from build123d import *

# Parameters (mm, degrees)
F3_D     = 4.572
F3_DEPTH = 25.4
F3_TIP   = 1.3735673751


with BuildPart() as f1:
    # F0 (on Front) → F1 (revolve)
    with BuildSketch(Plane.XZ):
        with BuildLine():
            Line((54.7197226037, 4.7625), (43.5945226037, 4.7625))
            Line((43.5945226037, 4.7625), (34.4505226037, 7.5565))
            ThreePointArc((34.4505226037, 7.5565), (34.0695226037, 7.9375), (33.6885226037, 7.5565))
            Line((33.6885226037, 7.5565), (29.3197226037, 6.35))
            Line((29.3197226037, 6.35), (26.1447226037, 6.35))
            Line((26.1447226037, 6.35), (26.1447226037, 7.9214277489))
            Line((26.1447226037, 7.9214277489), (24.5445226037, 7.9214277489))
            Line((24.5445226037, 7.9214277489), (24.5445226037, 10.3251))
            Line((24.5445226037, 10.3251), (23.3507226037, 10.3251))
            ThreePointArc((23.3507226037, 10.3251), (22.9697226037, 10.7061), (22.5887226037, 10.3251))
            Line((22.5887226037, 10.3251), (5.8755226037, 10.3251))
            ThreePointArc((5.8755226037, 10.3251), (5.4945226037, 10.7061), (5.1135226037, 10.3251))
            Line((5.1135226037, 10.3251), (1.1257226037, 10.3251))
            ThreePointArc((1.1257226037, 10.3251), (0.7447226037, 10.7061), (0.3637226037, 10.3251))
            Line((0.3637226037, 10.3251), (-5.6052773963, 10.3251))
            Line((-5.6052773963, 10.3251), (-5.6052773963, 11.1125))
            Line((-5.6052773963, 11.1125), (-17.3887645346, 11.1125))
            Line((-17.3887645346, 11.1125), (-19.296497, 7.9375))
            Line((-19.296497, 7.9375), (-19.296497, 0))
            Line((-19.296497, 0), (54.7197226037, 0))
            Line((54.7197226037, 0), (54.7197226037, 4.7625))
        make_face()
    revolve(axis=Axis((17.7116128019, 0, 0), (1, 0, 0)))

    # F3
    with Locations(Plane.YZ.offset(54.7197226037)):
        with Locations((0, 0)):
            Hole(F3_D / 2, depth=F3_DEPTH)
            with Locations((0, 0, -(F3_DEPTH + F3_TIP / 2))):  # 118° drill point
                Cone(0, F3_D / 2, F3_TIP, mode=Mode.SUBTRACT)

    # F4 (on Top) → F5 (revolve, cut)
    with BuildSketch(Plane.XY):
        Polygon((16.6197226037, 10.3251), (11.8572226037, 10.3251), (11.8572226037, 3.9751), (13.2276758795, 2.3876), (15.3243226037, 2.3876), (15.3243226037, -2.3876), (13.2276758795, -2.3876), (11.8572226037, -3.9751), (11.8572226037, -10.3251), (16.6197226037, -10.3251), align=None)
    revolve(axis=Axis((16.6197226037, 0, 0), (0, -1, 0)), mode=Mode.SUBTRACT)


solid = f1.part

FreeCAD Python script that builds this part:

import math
import FreeCAD as App
import Part
import Sketcher
from FreeCAD import Vector
Q = App.Units.Quantity


def add_polygon(sketch, points):
    """Adds a closed chain of lines whose ends are joined by coincident constraints."""
    first, n = sketch.GeometryCount, len(points)
    for a, b in zip(points, points[1:] + points[:1]):
        sketch.addGeometry(Part.LineSegment(App.Vector(*a, 0), App.Vector(*b, 0)), False)
    for i in range(n):
        sketch.addConstraint(Sketcher.Constraint("Coincident", first + i, 2, first + (i + 1) % n, 1))

doc = App.newDocument("Part")
params = doc.addObject("Spreadsheet::Sheet", "Params")
for row, (alias, value) in enumerate([
    ("sketch1_radius", "0.015 in"),
    ("sketch1_width", "0.438 in"),
    ("sketch1_width2", "0.125 in"),
    ("sketch1_width3", "0.063 in"),
    ("sketch1_width4", "0.047 in"),
    ("revolution_angle", "360 deg"),
    ("sketch2_diameter", "0.18 in"),
    ("hole_diameter", "0.18 in"),
    ("hole_depth", "1 in"),
    ("sketch3_height", "0.25 in"),
    ("sketch3_width", "0.1875 in"),
    ("sketch3_height2", "0.188 in"),
    ("sketch3_height3", "0.813 in"),
    ("groove_angle", "360 deg"),
], start=1):
    params.set(f"A{row}", alias)
    params.set(f"B{row}", "=" + value)
    params.setAlias(f"B{row}", alias)

body = doc.addObject("PartDesign::Body", "Body")

sketch1 = body.newObject("Sketcher::SketchObject", "Sketch")
sketch1.AttachmentSupport = (doc.getObject("XZ_Plane"), [""])
sketch1.MapMode = "FlatFace"
sketch1.addGeometry([
    Part.LineSegment(Vector(54.719723, 4.7625, 0), Vector(43.594523, 4.7625, 0)),
    Part.LineSegment(Vector(43.594523, 4.7625, 0), Vector(34.450523, 7.5565, 0)),
    Part.ArcOfCircle(Part.Circle(Vector(34.069523, 7.5565, 0), Vector(0, 0, 1), 0.381), math.radians(0), math.radians(180)),
    Part.LineSegment(Vector(33.688523, 7.5565, 0), Vector(29.319723, 6.35, 0)),
    Part.LineSegment(Vector(29.319723, 6.35, 0), Vector(26.144723, 6.35, 0)),
    Part.LineSegment(Vector(26.144723, 6.35, 0), Vector(26.144723, 7.921428, 0)),
    Part.LineSegment(Vector(26.144723, 7.921428, 0), Vector(24.544523, 7.921428, 0)),
    Part.LineSegment(Vector(24.544523, 7.921428, 0), Vector(24.544523, 10.3251, 0)),
    Part.LineSegment(Vector(24.544523, 10.3251, 0), Vector(23.350723, 10.3251, 0)),
    Part.ArcOfCircle(Part.Circle(Vector(22.969723, 10.3251, 0), Vector(0, 0, 1), 0.381), math.radians(0), math.radians(180)),
    Part.LineSegment(Vector(22.588723, 10.3251, 0), Vector(5.875523, 10.3251, 0)),
    Part.ArcOfCircle(Part.Circle(Vector(5.494523, 10.3251, 0), Vector(0, 0, 1), 0.381), math.radians(0), math.radians(180)),
    Part.LineSegment(Vector(5.113523, 10.3251, 0), Vector(1.125723, 10.3251, 0)),
    Part.ArcOfCircle(Part.Circle(Vector(0.744723, 10.3251, 0), Vector(0, 0, 1), 0.381), math.radians(0), math.radians(180)),
    Part.LineSegment(Vector(0.363723, 10.3251, 0), Vector(-5.605277, 10.3251, 0)),
    Part.LineSegment(Vector(-5.605277, 10.3251, 0), Vector(-5.605277, 11.1125, 0)),
    Part.LineSegment(Vector(-5.605277, 11.1125, 0), Vector(-17.388765, 11.1125, 0)),
    Part.LineSegment(Vector(-17.388765, 11.1125, 0), Vector(-19.296497, 7.9375, 0)),
    Part.LineSegment(Vector(-19.296497, 7.9375, 0), Vector(-19.296497, 0, 0)),
    Part.LineSegment(Vector(-19.296497, 0, 0), Vector(54.719723, 0, 0)),
    Part.LineSegment(Vector(54.719723, 0, 0), Vector(54.719723, 4.7625, 0)),
], False)
sketch1.addConstraint([
    Sketcher.Constraint("Coincident", 0, 2, 1, 1),
    Sketcher.Constraint("Coincident", 1, 2, 2, 1),
    Sketcher.Constraint("Coincident", 2, 2, 3, 1),
    Sketcher.Constraint("Coincident", 3, 2, 4, 1),
    Sketcher.Constraint("Coincident", 4, 2, 5, 1),
    Sketcher.Constraint("Coincident", 5, 2, 6, 1),
    Sketcher.Constraint("Coincident", 6, 2, 7, 1),
    Sketcher.Constraint("Coincident", 7, 2, 8, 1),
    Sketcher.Constraint("Coincident", 8, 2, 9, 1),
    Sketcher.Constraint("Coincident", 9, 2, 10, 1),
    Sketcher.Constraint("Coincident", 10, 2, 11, 1),
    Sketcher.Constraint("Coincident", 11, 2, 12, 1),
    Sketcher.Constraint("Coincident", 12, 2, 13, 1),
    Sketcher.Constraint("Coincident", 13, 2, 14, 1),
    Sketcher.Constraint("Coincident", 14, 2, 15, 1),
    Sketcher.Constraint("Coincident", 15, 2, 16, 1),
    Sketcher.Constraint("Coincident", 16, 2, 17, 1),
    Sketcher.Constraint("Coincident", 17, 2, 18, 1),
    Sketcher.Constraint("Coincident", 18, 2, 19, 1),
    Sketcher.Constraint("Coincident", 19, 2, 20, 1),
    Sketcher.Constraint("Coincident", 20, 2, 0, 1),
    Sketcher.Constraint("Horizontal", 0),
    Sketcher.Constraint("Horizontal", 4),
    Sketcher.Constraint("Vertical", 5),
    Sketcher.Constraint("Horizontal", 6),
    Sketcher.Constraint("Vertical", 7),
    Sketcher.Constraint("Horizontal", 8),
    Sketcher.Constraint("Horizontal", 10),
    Sketcher.Constraint("Horizontal", 12),
    Sketcher.Constraint("Horizontal", 14),
    Sketcher.Constraint("Vertical", 15),
    Sketcher.Constraint("Horizontal", 16),
    Sketcher.Constraint("Vertical", 18),
    Sketcher.Constraint("Horizontal", 19),
    Sketcher.Constraint("Vertical", 20),
    Sketcher.Constraint("Equal", 2, 9),
    Sketcher.Constraint("Equal", 9, 11),
    Sketcher.Constraint("Equal", 11, 13),
    Sketcher.Constraint("PointOnObject", 18, 2, -1),
    Sketcher.Constraint("Horizontal", 9, 3, 11, 3),
    Sketcher.Constraint("Horizontal", 11, 3, 13, 3),
    Sketcher.Constraint("Horizontal", 2, 3, 1, 2),
    Sketcher.Constraint("Horizontal", 1, 2, 2, 2),
    Sketcher.Constraint("Horizontal", 13, 3, 7, 2),
    Sketcher.Constraint("Horizontal", 8, 2, 9, 2),
    Sketcher.Constraint("Horizontal", 10, 2, 11, 2),
    Sketcher.Constraint("Horizontal", 12, 2, 13, 2),
    Sketcher.Constraint("Angle", 17, Q("-121 deg")),
    Sketcher.Constraint("Radius", 2, Q("0.015 in")),
    Sketcher.Constraint("DistanceX", 3, 2, 19, 2, Q("1 in")),
    Sketcher.Constraint("DistanceX", 11, 3, 0, 2, Q("1.5 in")),
    Sketcher.Constraint("DistanceX", 0, 2, 0, 1, Q("0.438 in")),
    Sketcher.Constraint("DistanceX", 4, 2, 4, 1, Q("0.125 in")),
    Sketcher.Constraint("DistanceX", 6, 2, 6, 1, Q("0.063 in")),
    Sketcher.Constraint("DistanceX", 8, 2, 8, 1, Q("0.047 in")),
    Sketcher.Constraint("DistanceX", 12, 2, 12, 1, Q("0.157 in")),
    Sketcher.Constraint("DistanceX", 14, 2, 14, 1, Q("0.235 in")),
    Sketcher.Constraint("DistanceY", 15, 1, 15, 2, Q("0.031 in")),
    Sketcher.Constraint("DistanceY", 18, 2, 18, 1, Q("0.3125 in")),
    Sketcher.Constraint("DistanceY", 20, 1, 20, 2, Q("0.1875 in")),
    Sketcher.Constraint("DistanceY", -1, 1, 3, 2, Q("0.25 in")),
    Sketcher.Constraint("DistanceY", 0, 2, 2, 3, Q("0.11 in")),
    Sketcher.Constraint("DistanceX", 1, 2, 0, 2, Q("0.36 in")),
    Sketcher.Constraint("DistanceY", -1, 1, 15, 2, Q("0.4375 in")),
    Sketcher.Constraint("DistanceX", 19, 1, 19, 2, Q("74.01622 mm")),
    Sketcher.Constraint("DistanceY", 5, 1, 5, 2, Q("1.571428 mm")),
    Sketcher.Constraint("DistanceX", -1, 1, 2, 3, Q("34.069523 mm")),
])
sketch1.setExpression("Constraints[48]", "Params.sketch1_radius")
sketch1.setExpression("Constraints[51]", "Params.sketch1_width")
sketch1.setExpression("Constraints[52]", "Params.sketch1_width2")
sketch1.setExpression("Constraints[53]", "Params.sketch1_width3")
sketch1.setExpression("Constraints[54]", "Params.sketch1_width4")
revolution = body.newObject("PartDesign::Revolution", "Revolution")
revolution.Profile = sketch1
revolution.ReferenceAxis = (sketch1, ["H_Axis"])
revolution.setExpression("Angle", "Params.revolution_angle")

sketch2 = body.newObject("Sketcher::SketchObject", "Sketch001")
sketch2.AttachmentSupport = (doc.getObject("YZ_Plane"), [""])
sketch2.MapMode = "FlatFace"
sketch2.AttachmentOffset = App.Placement(Vector(0, 0, 54.719723), App.Rotation())
sketch2.addGeometry(Part.Circle(Vector(0, 0, 0), Vector(0, 0, 1), 2.286), False)
sketch2.addConstraint([
    Sketcher.Constraint("Coincident", 0, 3, -1, 1),
    Sketcher.Constraint("Diameter", 0, Q("0.18 in")),
])
sketch2.setExpression("Constraints[1]", "Params.sketch2_diameter")
doc.recompute()
hole = body.newObject("PartDesign::Hole", "Hole")
hole.Profile = sketch2
hole.ThreadType = "None"
hole.setExpression("Diameter", "Params.hole_diameter")
hole.DepthType = "Dimension"
hole.setExpression("Depth", "Params.hole_depth")
hole.DrillPoint = "Angled"
hole.DrillPointAngle = 118

sketch3 = body.newObject("Sketcher::SketchObject", "Sketch002")
sketch3.AttachmentSupport = (doc.getObject("XY_Plane"), [""])
sketch3.MapMode = "FlatFace"
add_polygon(sketch3, [(16.619723, 10.3251), (11.857223, 10.3251), (11.857223, 3.9751), (13.227676, 2.3876), (15.324323, 2.3876), (15.324323, -2.3876), (13.227676, -2.3876), (11.857223, -3.9751), (11.857223, -10.3251), (16.619723, -10.3251)])
sketch3.addGeometry(Part.LineSegment(Vector(16.619723, 10.3251, 0), Vector(16.619723, -10.3251, 0)), True)
sketch3.addConstraint([
    Sketcher.Constraint("Horizontal", 0),
    Sketcher.Constraint("Vertical", 1),
    Sketcher.Constraint("Horizontal", 3),
    Sketcher.Constraint("Vertical", 4),
    Sketcher.Constraint("Horizontal", 5),
    Sketcher.Constraint("Vertical", 7),
    Sketcher.Constraint("Horizontal", 8),
    Sketcher.Constraint("Vertical", 9),
    Sketcher.Constraint("Vertical", 10),
    Sketcher.Constraint("Coincident", 10, 1, 9, 2),
    Sketcher.Constraint("Symmetric", 2, 2, 5, 2, -1),
    Sketcher.Constraint("Symmetric", 1, 2, 6, 2, -1),
    Sketcher.Constraint("Horizontal", 7, 2, 10, 2),
    Sketcher.Constraint("Equal", 1, 7),
    Sketcher.Constraint("DistanceY", 1, 2, 1, 1, Q("0.25 in")),
    Sketcher.Constraint("DistanceX", 0, 2, 0, 1, Q("0.1875 in")),
    Sketcher.Constraint("DistanceY", 4, 2, 4, 1, Q("0.188 in")),
    Sketcher.Constraint("DistanceY", 9, 1, 9, 2, Q("0.813 in")),
    Sketcher.Constraint("DistanceX", 4, 2, 8, 2, Q("0.051 in")),
    Sketcher.Constraint("DistanceX", 3, 1, 3, 2, Q("2.096647 mm")),
    Sketcher.Constraint("DistanceX", -1, 1, 0, 2, Q("11.857223 mm")),
])
sketch3.setExpression("Constraints[24]", "Params.sketch3_height")
sketch3.setExpression("Constraints[25]", "Params.sketch3_width")
sketch3.setExpression("Constraints[26]", "Params.sketch3_height2")
sketch3.setExpression("Constraints[27]", "Params.sketch3_height3")
groove = body.newObject("PartDesign::Groove", "Groove")
groove.Profile = sketch3
groove.ReferenceAxis = (sketch3, ["Axis0"])
groove.setExpression("Angle", "Params.groove_angle")

doc.recompute()
